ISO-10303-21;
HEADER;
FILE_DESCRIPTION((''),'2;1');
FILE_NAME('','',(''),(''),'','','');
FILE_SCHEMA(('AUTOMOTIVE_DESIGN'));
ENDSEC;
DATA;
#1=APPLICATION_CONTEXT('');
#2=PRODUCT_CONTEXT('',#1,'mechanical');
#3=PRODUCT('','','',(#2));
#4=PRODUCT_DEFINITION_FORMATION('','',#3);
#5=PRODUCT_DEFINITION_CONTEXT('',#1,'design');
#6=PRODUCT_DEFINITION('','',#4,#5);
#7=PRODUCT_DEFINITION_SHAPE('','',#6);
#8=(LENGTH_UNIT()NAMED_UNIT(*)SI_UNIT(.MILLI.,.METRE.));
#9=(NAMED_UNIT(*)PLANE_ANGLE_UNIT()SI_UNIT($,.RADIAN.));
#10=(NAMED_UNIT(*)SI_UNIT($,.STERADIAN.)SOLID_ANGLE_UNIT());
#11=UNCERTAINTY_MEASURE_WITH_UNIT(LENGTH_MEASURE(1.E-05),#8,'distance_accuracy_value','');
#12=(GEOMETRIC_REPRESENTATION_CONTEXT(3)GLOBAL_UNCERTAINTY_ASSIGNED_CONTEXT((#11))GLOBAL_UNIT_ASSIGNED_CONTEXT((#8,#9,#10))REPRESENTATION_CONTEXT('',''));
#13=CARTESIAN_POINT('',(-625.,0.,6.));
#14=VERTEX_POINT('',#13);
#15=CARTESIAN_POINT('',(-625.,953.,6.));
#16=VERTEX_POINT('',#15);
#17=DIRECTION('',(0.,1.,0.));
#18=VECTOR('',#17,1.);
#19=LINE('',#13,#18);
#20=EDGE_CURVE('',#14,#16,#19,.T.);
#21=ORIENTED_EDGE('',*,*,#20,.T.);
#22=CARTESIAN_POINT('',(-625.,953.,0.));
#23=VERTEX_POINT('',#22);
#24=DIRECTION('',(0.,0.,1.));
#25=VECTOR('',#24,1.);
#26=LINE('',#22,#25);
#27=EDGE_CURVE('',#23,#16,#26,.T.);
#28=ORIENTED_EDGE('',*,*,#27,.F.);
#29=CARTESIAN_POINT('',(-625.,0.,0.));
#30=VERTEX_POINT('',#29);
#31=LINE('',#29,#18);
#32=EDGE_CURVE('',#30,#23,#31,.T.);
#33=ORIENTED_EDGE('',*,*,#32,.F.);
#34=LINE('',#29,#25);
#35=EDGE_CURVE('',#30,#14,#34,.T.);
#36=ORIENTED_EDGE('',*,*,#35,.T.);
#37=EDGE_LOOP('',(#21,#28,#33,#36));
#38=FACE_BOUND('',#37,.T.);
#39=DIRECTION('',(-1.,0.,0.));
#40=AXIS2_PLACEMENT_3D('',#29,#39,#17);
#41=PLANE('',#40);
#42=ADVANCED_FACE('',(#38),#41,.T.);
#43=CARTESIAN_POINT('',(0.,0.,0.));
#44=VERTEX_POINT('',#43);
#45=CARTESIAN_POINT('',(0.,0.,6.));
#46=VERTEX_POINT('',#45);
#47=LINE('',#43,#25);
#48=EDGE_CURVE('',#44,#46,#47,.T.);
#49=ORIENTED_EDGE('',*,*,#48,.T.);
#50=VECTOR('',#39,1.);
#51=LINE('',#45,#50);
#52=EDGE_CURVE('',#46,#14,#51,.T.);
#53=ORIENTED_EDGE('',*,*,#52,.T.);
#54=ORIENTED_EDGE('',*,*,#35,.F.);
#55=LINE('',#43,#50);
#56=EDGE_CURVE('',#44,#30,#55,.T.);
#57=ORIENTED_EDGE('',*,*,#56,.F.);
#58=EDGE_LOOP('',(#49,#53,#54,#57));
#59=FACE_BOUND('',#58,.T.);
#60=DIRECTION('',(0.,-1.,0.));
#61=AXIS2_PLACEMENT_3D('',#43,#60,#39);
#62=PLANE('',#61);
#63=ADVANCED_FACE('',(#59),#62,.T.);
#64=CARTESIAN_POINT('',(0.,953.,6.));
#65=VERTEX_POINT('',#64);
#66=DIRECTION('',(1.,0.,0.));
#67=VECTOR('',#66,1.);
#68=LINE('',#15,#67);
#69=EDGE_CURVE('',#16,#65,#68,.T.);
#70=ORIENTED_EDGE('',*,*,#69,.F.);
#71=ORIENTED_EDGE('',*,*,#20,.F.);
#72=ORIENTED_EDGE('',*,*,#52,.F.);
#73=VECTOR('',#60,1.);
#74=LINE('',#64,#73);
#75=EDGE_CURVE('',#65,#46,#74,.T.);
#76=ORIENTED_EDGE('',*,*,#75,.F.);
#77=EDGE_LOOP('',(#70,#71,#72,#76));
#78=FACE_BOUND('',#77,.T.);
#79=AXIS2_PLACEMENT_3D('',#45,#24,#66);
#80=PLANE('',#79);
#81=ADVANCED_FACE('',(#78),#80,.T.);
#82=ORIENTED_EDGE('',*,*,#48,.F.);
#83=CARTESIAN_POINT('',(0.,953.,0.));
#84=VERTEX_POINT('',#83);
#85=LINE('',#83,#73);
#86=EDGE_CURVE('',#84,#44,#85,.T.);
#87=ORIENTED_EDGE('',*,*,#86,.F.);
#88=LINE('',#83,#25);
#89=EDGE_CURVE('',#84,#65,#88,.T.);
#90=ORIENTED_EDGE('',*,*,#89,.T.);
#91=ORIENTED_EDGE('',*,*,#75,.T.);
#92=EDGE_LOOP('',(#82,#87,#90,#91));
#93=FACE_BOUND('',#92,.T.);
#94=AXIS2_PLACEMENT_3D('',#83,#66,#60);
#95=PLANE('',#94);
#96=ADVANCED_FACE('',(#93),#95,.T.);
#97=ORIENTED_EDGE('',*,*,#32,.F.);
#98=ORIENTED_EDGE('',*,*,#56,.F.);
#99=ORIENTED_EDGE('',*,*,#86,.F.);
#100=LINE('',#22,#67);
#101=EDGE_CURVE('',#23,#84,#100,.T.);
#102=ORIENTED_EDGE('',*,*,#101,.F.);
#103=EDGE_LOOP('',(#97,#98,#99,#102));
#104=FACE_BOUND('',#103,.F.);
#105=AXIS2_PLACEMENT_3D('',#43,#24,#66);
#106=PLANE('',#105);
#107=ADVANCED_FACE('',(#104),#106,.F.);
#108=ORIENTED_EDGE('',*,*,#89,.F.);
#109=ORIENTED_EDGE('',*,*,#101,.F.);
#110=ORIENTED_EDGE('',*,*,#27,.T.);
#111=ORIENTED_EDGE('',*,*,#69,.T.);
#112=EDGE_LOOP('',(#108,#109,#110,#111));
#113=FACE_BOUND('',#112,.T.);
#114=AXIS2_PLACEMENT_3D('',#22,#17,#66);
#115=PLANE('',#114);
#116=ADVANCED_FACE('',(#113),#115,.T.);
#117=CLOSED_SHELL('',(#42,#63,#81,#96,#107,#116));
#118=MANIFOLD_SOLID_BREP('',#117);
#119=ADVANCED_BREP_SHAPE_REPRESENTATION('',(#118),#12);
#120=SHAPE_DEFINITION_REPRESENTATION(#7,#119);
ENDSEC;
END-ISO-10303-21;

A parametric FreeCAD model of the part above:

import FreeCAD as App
import Part
import Sketcher
Q = App.Units.Quantity

doc = App.newDocument("Part")
params = doc.addObject("Spreadsheet::Sheet", "Params")
for row, (alias, value) in enumerate([
    ("sketch1_width", "625 mm"),
    ("sketch1_height", "953 mm"),
    ("pad1_length", "6 mm"),
], start=1):
    params.set(f"A{row}", alias)
    params.set(f"B{row}", "=" + value)
    params.setAlias(f"B{row}", alias)

body = doc.addObject("PartDesign::Body", "Body")

# Sketch on XY plane
sketch1 = body.newObject("Sketcher::SketchObject", "Sketch")
sketch1.AttachmentSupport = (doc.getObject("XY_Plane"), [""])
sketch1.MapMode = "FlatFace"
sketch1.addGeometry([
    Part.LineSegment(App.Vector(0, 953, 0), App.Vector(-625, 953, 0)),
    Part.LineSegment(App.Vector(-625, 953, 0), App.Vector(-625, 0, 0)),
    Part.LineSegment(App.Vector(-625, 0, 0), App.Vector(0, 0, 0)),
    Part.LineSegment(App.Vector(0, 0, 0), App.Vector(0, 953, 0)),
], False)
sketch1.addConstraint([
    Sketcher.Constraint("Coincident", 0, 2, 1, 1),
    Sketcher.Constraint("Coincident", 1, 2, 2, 1),
    Sketcher.Constraint("Coincident", 2, 2, 3, 1),
    Sketcher.Constraint("Coincident", 3, 2, 0, 1),
    Sketcher.Constraint("Horizontal", 0),
    Sketcher.Constraint("Vertical", 1),
    Sketcher.Constraint("Horizontal", 2),
    Sketcher.Constraint("Vertical", 3),
    Sketcher.Constraint("Coincident", 2, 2, -1, 1),
    Sketcher.Constraint("DistanceX", 0, 2, 0, 1, Q("625 mm")),
    Sketcher.Constraint("DistanceY", 1, 2, 1, 1, Q("953 mm")),
])
sketch1.setExpression("Constraints[9]", "Params.sketch1_width")
sketch1.setExpression("Constraints[10]", "Params.sketch1_height")
pad1 = body.newObject("PartDesign::Pad", "Pad")
pad1.Profile = sketch1
pad1.setExpression("Length", "Params.pad1_length")

doc.recompute()
